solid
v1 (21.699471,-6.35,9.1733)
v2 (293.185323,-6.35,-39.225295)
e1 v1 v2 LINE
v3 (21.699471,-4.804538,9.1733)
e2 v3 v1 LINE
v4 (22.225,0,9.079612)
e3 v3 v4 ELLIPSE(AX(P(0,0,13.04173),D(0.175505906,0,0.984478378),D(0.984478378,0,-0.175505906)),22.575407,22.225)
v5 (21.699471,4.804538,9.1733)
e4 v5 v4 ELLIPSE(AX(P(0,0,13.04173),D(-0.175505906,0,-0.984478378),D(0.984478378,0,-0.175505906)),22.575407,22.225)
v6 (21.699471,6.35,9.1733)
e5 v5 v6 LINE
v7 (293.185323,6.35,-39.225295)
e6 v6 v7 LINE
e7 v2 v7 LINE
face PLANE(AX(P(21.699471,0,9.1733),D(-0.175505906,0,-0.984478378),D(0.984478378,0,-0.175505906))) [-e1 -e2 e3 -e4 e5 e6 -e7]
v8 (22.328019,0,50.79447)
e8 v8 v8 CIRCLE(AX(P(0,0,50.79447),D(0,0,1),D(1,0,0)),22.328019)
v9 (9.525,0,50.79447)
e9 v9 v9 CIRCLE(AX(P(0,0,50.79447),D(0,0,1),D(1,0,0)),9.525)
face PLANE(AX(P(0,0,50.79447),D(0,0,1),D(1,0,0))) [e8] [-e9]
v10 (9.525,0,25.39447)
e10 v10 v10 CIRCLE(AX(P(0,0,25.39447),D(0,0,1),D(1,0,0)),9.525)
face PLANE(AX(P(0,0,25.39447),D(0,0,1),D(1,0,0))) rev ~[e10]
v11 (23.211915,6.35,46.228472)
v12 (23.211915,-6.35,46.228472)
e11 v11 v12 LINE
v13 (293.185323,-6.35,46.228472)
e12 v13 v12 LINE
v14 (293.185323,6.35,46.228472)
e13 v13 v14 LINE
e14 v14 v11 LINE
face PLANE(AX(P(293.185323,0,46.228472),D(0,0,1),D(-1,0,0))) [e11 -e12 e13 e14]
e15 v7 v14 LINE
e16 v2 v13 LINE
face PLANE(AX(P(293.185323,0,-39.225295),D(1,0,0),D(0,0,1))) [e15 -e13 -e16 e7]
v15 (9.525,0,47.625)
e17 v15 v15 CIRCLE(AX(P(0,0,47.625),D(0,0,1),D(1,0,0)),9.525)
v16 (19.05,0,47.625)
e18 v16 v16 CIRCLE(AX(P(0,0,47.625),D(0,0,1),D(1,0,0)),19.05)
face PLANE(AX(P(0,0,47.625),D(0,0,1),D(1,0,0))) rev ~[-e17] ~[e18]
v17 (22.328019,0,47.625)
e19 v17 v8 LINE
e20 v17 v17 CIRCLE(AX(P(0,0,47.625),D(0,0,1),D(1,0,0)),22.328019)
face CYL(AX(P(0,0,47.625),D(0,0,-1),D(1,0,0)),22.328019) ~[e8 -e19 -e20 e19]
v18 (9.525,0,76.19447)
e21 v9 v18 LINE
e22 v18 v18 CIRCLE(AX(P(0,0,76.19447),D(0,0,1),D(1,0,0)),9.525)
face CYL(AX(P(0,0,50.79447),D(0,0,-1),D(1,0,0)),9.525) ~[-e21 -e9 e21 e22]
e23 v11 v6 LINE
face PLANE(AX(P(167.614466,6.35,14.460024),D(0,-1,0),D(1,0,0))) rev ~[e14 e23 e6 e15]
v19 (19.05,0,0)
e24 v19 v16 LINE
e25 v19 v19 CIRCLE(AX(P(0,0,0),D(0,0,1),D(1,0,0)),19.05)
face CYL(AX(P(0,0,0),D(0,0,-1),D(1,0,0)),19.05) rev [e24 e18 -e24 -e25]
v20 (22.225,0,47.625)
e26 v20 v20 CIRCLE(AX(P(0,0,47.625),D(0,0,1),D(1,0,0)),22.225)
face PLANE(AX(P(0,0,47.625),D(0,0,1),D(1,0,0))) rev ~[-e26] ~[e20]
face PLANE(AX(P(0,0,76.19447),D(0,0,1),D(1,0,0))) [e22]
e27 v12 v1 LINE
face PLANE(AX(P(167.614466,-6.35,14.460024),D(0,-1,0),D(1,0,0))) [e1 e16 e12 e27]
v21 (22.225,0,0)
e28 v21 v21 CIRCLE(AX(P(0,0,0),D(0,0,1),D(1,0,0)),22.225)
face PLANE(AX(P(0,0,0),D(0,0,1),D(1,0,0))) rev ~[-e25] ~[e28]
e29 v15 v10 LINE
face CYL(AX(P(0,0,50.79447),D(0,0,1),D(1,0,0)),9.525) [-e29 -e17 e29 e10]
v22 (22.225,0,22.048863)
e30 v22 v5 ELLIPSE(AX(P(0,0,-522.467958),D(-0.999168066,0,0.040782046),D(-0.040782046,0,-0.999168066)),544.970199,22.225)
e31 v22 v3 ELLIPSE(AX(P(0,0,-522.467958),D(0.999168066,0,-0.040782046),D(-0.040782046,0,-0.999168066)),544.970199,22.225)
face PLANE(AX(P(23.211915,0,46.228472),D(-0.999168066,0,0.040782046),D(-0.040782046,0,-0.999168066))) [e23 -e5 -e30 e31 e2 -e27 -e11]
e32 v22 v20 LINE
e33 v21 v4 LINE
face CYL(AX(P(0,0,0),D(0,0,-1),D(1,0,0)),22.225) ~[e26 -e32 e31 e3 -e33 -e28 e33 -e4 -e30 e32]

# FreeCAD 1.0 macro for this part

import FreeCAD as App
import Part
import Sketcher
from FreeCAD import Vector
Q = App.Units.Quantity


def add_polygon(sketch, points):
    """Adds a closed chain of lines whose ends are joined by coincident constraints."""
    first, n = sketch.GeometryCount, len(points)
    for a, b in zip(points, points[1:] + points[:1]):
        sketch.addGeometry(Part.LineSegment(App.Vector(*a, 0), App.Vector(*b, 0)), False)
    for i in range(n):
        sketch.addConstraint(Sketcher.Constraint("Coincident", first + i, 2, first + (i + 1) % n, 1))

doc = App.newDocument("Part")
body = doc.addObject("PartDesign::Body", "Body")

sketch1 = doc.addObject("Sketcher::SketchObject", "Sketch")
body.addObject(sketch1)
sketch1.AttachmentSupport = (doc.XY_Plane, [""])
sketch1.MapMode = "FlatFace"
sketch1.addGeometry([
    Part.Circle(Vector(0, 0, 0), Vector(0, 0, 1), 22),
    Part.Circle(Vector(0, 0, 0), Vector(0, 0, 1), 19),
], False)
sketch1.addConstraint([
    Sketcher.Constraint("Coincident", 0, 3, -1, 1),
    Sketcher.Constraint("Coincident", 1, 3, -1, 1),
    Sketcher.Constraint("Diameter", 1, Q("1.5 in")),
    Sketcher.Constraint("Diameter", 0, Q("1.75 in")),
])
pad1 = doc.addObject("PartDesign::Pad", "Pad")
body.addObject(pad1)
pad1.Profile = sketch1
pad1.Length = Q("1.875 in")

sketch2 = doc.addObject("Sketcher::SketchObject", "Sketch001")
body.addObject(sketch2)
sketch2.AttachmentSupport = (doc.XY_Plane, [""])
sketch2.MapMode = "FlatFace"
sketch2.AttachmentOffset = App.Placement(Vector(0, 0, 1.875 * 25.4), App.Rotation())
sketch2.addGeometry(Part.Circle(Vector(0, 0, 0), Vector(0, 0, 1), 22), False)
sketch2.addConstraint([
    Sketcher.Constraint("Coincident", 0, 3, -1, 1),
    Sketcher.Constraint("Diameter", 0, Q("44.656038 mm")),
])
pad2 = doc.addObject("PartDesign::Pad", "Pad001")
body.addObject(pad2)
pad2.Profile = sketch2
pad2.Length = 3.16947

sketch3 = doc.addObject("Sketcher::SketchObject", "Sketch002")
body.addObject(sketch3)
sketch3.AttachmentSupport = (doc.XY_Plane, [""])
sketch3.MapMode = "FlatFace"
sketch3.AttachmentOffset = App.Placement(Vector(0, 0, 50.79447), App.Rotation())
sketch3.addGeometry(Part.Circle(Vector(0, 0, 0), Vector(0, 0, 1), 10), False)
sketch3.addConstraint([
    Sketcher.Constraint("Coincident", 0, 3, -1, 1),
    Sketcher.Constraint("Diameter", 0, Q("0.75 in")),
])
pad3 = doc.addObject("PartDesign::Pad", "Pad002")
body.addObject(pad3)
pad3.Profile = sketch3
pad3.Type = "TwoLengths"
pad3.Length = Q("1 in")
pad3.Length2 = Q("1 in")

sketch4 = doc.addObject("Sketcher::SketchObject", "Sketch003")
body.addObject(sketch4)
sketch4.AttachmentSupport = (doc.XZ_Plane, [""])
sketch4.MapMode = "FlatFace"
add_polygon(sketch4, [(293, 46), (23, 46), (22, 9), (293, -39)])
sketch4.addConstraint([
    Sketcher.Constraint("Horizontal", 0),
    Sketcher.Constraint("Vertical", 3),
    Sketcher.Constraint("DistanceX", 0, 2, 0, 1, Q("269.973408 mm")),
    Sketcher.Constraint("DistanceY", -1, 1, 1, 2, Q("9.1733 mm")),
    Sketcher.Constraint("Distance", 2, Q("275.766191 mm")),
    Sketcher.Constraint("DistanceY", 3, 1, 3, 2, Q("85.453767 mm")),
    Sketcher.Constraint("DistanceY", -1, 1, 0, 2, Q("46.228472 mm")),
    Sketcher.Constraint("DistanceX", -1, 1, 1, 2, Q("21.699471 mm")),
])
pad4 = doc.addObject("PartDesign::Pad", "Pad003")
body.addObject(pad4)
pad4.Profile = sketch4
pad4.Type = "TwoLengths"
pad4.Length = Q("0.25 in")
pad4.Length2 = Q("0.25 in")

doc.recompute()
